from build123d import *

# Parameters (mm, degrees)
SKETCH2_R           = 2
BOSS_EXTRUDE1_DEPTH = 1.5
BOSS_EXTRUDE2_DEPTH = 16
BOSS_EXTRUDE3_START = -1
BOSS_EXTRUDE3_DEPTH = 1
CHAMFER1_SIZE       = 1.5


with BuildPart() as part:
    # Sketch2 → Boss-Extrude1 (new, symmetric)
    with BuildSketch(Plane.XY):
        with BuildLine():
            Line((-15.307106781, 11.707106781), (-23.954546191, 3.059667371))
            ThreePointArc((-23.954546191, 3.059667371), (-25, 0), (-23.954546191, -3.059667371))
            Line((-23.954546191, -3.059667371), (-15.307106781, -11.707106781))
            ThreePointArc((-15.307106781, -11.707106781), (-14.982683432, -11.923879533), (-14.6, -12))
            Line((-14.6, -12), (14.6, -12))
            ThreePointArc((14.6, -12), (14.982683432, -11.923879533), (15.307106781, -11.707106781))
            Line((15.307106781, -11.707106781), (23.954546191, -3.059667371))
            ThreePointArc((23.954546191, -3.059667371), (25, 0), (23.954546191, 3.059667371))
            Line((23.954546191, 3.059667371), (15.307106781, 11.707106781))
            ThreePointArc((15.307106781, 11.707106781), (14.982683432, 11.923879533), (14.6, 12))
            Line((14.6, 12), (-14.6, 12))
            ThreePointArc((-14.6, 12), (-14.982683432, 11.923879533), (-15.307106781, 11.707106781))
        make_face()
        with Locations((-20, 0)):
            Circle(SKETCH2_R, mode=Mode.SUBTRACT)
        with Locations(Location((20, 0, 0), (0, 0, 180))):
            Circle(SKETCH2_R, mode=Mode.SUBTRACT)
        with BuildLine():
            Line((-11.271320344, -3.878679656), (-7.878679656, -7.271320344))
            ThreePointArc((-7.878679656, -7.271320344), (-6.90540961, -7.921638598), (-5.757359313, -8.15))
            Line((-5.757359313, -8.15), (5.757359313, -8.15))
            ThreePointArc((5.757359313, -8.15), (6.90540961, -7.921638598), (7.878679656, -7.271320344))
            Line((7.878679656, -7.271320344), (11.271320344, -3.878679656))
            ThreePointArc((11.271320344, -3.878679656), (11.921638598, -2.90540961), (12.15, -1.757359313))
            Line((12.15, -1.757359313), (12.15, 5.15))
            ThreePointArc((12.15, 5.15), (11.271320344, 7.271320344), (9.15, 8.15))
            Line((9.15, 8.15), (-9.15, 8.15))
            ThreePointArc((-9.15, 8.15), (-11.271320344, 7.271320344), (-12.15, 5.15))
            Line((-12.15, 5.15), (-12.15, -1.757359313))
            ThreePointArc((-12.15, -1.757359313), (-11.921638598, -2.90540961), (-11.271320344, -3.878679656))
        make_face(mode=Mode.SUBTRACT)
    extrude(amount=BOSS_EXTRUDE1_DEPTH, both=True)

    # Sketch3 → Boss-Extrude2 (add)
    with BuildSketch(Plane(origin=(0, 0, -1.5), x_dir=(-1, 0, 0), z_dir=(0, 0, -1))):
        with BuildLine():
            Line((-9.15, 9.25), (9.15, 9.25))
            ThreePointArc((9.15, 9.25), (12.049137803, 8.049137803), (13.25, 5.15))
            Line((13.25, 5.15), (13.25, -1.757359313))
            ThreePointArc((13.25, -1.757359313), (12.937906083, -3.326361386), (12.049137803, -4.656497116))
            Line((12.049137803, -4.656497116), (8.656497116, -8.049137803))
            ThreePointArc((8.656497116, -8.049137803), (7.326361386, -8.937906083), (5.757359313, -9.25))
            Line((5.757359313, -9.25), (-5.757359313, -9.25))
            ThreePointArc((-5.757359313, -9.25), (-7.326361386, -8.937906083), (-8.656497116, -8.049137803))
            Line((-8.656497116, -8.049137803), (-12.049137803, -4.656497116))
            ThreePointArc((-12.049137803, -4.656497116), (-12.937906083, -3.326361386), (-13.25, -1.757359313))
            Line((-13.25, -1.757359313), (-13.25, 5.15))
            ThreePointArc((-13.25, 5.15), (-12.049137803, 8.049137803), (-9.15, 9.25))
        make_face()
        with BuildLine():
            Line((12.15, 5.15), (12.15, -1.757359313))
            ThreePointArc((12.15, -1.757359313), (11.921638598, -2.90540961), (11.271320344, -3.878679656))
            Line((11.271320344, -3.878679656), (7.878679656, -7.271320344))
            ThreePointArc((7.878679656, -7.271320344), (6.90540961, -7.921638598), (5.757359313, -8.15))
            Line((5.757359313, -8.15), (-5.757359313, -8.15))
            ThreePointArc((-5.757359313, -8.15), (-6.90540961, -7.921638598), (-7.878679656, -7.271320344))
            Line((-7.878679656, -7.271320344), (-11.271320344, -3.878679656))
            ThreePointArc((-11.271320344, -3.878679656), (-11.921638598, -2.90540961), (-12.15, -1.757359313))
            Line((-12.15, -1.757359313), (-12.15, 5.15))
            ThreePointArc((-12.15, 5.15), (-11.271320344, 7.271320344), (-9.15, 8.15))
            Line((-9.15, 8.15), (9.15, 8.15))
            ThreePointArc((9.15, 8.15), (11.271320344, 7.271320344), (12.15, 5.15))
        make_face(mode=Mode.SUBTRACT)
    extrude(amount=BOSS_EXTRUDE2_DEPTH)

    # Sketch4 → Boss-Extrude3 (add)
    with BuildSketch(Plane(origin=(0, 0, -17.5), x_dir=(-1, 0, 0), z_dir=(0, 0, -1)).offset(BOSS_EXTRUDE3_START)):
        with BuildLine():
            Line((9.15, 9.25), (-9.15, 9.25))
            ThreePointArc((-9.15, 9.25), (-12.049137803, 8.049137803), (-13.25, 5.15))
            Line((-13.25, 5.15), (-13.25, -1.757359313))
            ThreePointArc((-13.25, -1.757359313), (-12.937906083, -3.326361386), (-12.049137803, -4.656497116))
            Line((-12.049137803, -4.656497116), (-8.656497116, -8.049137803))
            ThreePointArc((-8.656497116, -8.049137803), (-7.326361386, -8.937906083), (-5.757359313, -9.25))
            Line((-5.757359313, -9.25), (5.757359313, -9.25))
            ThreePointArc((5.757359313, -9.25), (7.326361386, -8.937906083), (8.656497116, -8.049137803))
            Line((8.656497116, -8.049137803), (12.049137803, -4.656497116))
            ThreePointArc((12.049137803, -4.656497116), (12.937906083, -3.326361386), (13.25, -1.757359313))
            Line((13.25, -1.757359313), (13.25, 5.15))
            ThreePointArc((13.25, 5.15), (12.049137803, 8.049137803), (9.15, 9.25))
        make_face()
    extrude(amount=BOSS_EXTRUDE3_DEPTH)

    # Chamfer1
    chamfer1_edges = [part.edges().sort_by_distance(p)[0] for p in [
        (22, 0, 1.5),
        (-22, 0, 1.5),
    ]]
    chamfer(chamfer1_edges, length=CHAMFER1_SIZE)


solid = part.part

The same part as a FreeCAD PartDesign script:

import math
import FreeCAD as App
import Part
import Sketcher
from FreeCAD import Vector


def edges_at(feature, points):
    """Names of the edges that pass closest to the given points."""
    edges = feature.Shape.Edges
    near = lambda p: min(range(len(edges)), key=lambda i: edges[i].distToShape(Part.Vertex(*p))[0])
    return sorted({f"Edge{near(p) + 1}" for p in points})

doc = App.newDocument("Part")
params = doc.addObject("Spreadsheet::Sheet", "Params")
for row, (alias, value) in enumerate([
    ("sketch1_diameter", "4 mm"),
    ("sketch1_radius", "5 mm"),
    ("sketch1_radius2", "1 mm"),
    ("sketch1_radius3", "3 mm"),
    ("sketch1_width", "29.2 mm"),
    ("pad1_length", "3 mm"),
    ("sketch2_radius", "3 mm"),
    ("sketch2_radius2", "4.1 mm"),
    ("sketch2_width", "18.3 mm"),
    ("pad2_length", "16 mm"),
    ("sketch3_radius", "4.1 mm"),
    ("sketch3_width", "18.3 mm"),
    ("pad3_length", "1 mm"),
    ("chamfer_size", "1.5 mm"),
], start=1):
    params.set(f"A{row}", alias)
    params.set(f"B{row}", "=" + value)
    params.setAlias(f"B{row}", alias)

body = doc.addObject("PartDesign::Body", "Body")

# Sketch on XY plane
sketch1 = body.newObject("Sketcher::SketchObject", "Sketch")
sketch1.AttachmentSupport = (doc.getObject("XY_Plane"), [""])
sketch1.MapMode = "FlatFace"
sketch1.addGeometry([
    Part.LineSegment(Vector(-15.3, 11.7, 0), Vector(-24, 3.1, 0)),  # 0
    Part.ArcOfCircle(Part.Circle(Vector(-20, 0, 0), Vector(0, 0, 1), 5), math.radians(142), math.radians(218)),  # 1
    Part.LineSegment(Vector(-24, -3.1, 0), Vector(-15.3, -11.7, 0)),  # 2
    Part.ArcOfCircle(Part.Circle(Vector(-14.6, -11, 0), Vector(0, 0, 1), 1), math.radians(-135), math.radians(-90)),  # 3
    Part.LineSegment(Vector(-14.6, -12, 0), Vector(14.6, -12, 0)),  # 4
    Part.ArcOfCircle(Part.Circle(Vector(14.6, -11, 0), Vector(0, 0, 1), 1), math.radians(-90), math.radians(-45)),  # 5
    Part.LineSegment(Vector(15.3, -11.7, 0), Vector(24, -3.1, 0)),  # 6
    Part.ArcOfCircle(Part.Circle(Vector(20, 0, 0), Vector(0, 0, 1), 5), math.radians(-38), math.radians(38)),  # 7
    Part.LineSegment(Vector(24, 3.1, 0), Vector(15.3, 11.7, 0)),  # 8
    Part.ArcOfCircle(Part.Circle(Vector(14.6, 11, 0), Vector(0, 0, 1), 1), math.radians(45), math.radians(90)),  # 9
    Part.LineSegment(Vector(14.6, 12, 0), Vector(-14.6, 12, 0)),  # 10
    Part.ArcOfCircle(Part.Circle(Vector(-14.6, 11, 0), Vector(0, 0, 1), 1), math.radians(90), math.radians(135)),  # 11
    Part.Circle(Vector(-20, 0, 0), Vector(0, 0, 1), 2),  # 12
    Part.LineSegment(Vector(-7.9, -7.3, 0), Vector(-11.3, -3.9, 0)),  # 13
    Part.ArcOfCircle(Part.Circle(Vector(-9.2, -1.8, 0), Vector(0, 0, 1), 3), math.radians(180), math.radians(225)),  # 14
    Part.LineSegment(Vector(-12.2, -1.8, 0), Vector(-12.2, 5.2, 0)),  # 15
    Part.ArcOfCircle(Part.Circle(Vector(-9.2, 5.2, 0), Vector(0, 0, 1), 3), math.radians(90), math.radians(180)),  # 16
    Part.LineSegment(Vector(-9.2, 8.2, 0), Vector(9.2, 8.2, 0)),  # 17
    Part.ArcOfCircle(Part.Circle(Vector(9.2, 5.2, 0), Vector(0, 0, 1), 3), math.radians(0), math.radians(90)),  # 18
    Part.LineSegment(Vector(12.2, 5.2, 0), Vector(12.2, -1.8, 0)),  # 19
    Part.ArcOfCircle(Part.Circle(Vector(9.2, -1.8, 0), Vector(0, 0, 1), 3), math.radians(-45), math.radians(0)),  # 20
    Part.LineSegment(Vector(11.3, -3.9, 0), Vector(7.9, -7.3, 0)),  # 21
    Part.ArcOfCircle(Part.Circle(Vector(5.8, -5.2, 0), Vector(0, 0, 1), 3), math.radians(-90), math.radians(-45)),  # 22
    Part.LineSegment(Vector(5.8, -8.2, 0), Vector(-5.8, -8.2, 0)),  # 23
    Part.ArcOfCircle(Part.Circle(Vector(-5.8, -5.2, 0), Vector(0, 0, 1), 3), math.radians(-135), math.radians(-90)),  # 24
    Part.Circle(Vector(20, 0, 0), Vector(0, 0, 1), 2),  # 25
], False)
sketch1.addConstraint([
    Sketcher.Constraint("Coincident", 0, 2, 1, 1),
    Sketcher.Constraint("Coincident", 1, 2, 2, 1),
    Sketcher.Constraint("Tangent", 2, 2, 3, 1),
    Sketcher.Constraint("Tangent", 3, 2, 4, 1),
    Sketcher.Constraint("Tangent", 4, 2, 5, 1),
    Sketcher.Constraint("Tangent", 5, 2, 6, 1),
    Sketcher.Constraint("Coincident", 6, 2, 7, 1),
    Sketcher.Constraint("Coincident", 7, 2, 8, 1),
    Sketcher.Constraint("Tangent", 8, 2, 9, 1),
    Sketcher.Constraint("Tangent", 9, 2, 10, 1),
    Sketcher.Constraint("Tangent", 10, 2, 11, 1),
    Sketcher.Constraint("Tangent", 11, 2, 0, 1),
    Sketcher.Constraint("Tangent", 13, 2, 14, 2),
    Sketcher.Constraint("Tangent", 14, 1, 15, 1),
    Sketcher.Constraint("Tangent", 15, 2, 16, 2),
    Sketcher.Constraint("Tangent", 16, 1, 17, 1),
    Sketcher.Constraint("Tangent", 17, 2, 18, 2),
    Sketcher.Constraint("Tangent", 18, 1, 19, 1),
    Sketcher.Constraint("Tangent", 19, 2, 20, 2),
    Sketcher.Constraint("Tangent", 20, 1, 21, 1),
    Sketcher.Constraint("Tangent", 21, 2, 22, 2),
    Sketcher.Constraint("Tangent", 22, 1, 23, 1),
    Sketcher.Constraint("Tangent", 23, 2, 24, 2),
    Sketcher.Constraint("Tangent", 24, 1, 13, 1),
    Sketcher.Constraint("Horizontal", 4),
    Sketcher.Constraint("Horizontal", 10),
    Sketcher.Constraint("Vertical", 15),
    Sketcher.Constraint("Horizontal", 17),
    Sketcher.Constraint("Vertical", 19),
    Sketcher.Constraint("Horizontal", 23),
    Sketcher.Constraint("Coincident", 12, 3, 1, 3),
    Sketcher.Constraint("Coincident", 25, 3, 7, 3),
    Sketcher.Constraint("Equal", 3, 5),
    Sketcher.Constraint("Equal", 1, 7),
    Sketcher.Constraint("Equal", 5, 9),
    Sketcher.Constraint("Equal", 9, 11),
    Sketcher.Constraint("Equal", 14, 16),
    Sketcher.Constraint("Equal", 16, 18),
    Sketcher.Constraint("Equal", 18, 20),
    Sketcher.Constraint("Equal", 20, 22),
    Sketcher.Constraint("Equal", 22, 24),
    Sketcher.Constraint("Equal", 12, 25),
    Sketcher.Constraint("Symmetric", 1, 3, 7, 3, -1, 1),
    Sketcher.Constraint("Symmetric", 3, 3, 9, 3, -1, 1),
    Sketcher.Constraint("Symmetric", 5, 2, 11, 2, -1, 1),
    Sketcher.Constraint("Symmetric", 14, 3, 20, 3, -2),
    Sketcher.Constraint("Symmetric", 2, 2, 5, 2, -2),
    Sketcher.Constraint("Symmetric", 0, 2, 7, 2, -2),
    Sketcher.Constraint("Perpendicular", 0, 2),
    Sketcher.Constraint("Parallel", 8, 13),
    Sketcher.Constraint("Perpendicular", 13, 21),
    Sketcher.Constraint("Diameter", 12, 4.0),
    Sketcher.Constraint("Radius", 1, 5.0),
    Sketcher.Constraint("Radius", 3, 1.0),
    Sketcher.Constraint("Radius", 14, 3.0),
    Sketcher.Constraint("DistanceX", 4, 1, 4, 2, 29.2),
    Sketcher.Constraint("DistanceX", 17, 1, 17, 2, 18.3),
    Sketcher.Constraint("DistanceX", 1, 3, -1, 1, 20.0),
    Sketcher.Constraint("DistanceY", 3, 3, -1, 1, 11.0),
    Sketcher.Constraint("DistanceY", 22, 3, 18, 3, 10.3),
    Sketcher.Constraint("DistanceY", -1, 1, 16, 3, 5.15),
    Sketcher.Constraint("DistanceX", 23, 2, 23, 1, 11.514719),
])
sketch1.setExpression("Constraints[51]", "Params.sketch1_diameter")
sketch1.setExpression("Constraints[52]", "Params.sketch1_radius")
sketch1.setExpression("Constraints[53]", "Params.sketch1_radius2")
sketch1.setExpression("Constraints[54]", "Params.sketch1_radius3")
sketch1.setExpression("Constraints[55]", "Params.sketch1_width")
pad1 = body.newObject("PartDesign::Pad", "Pad")
pad1.Profile = sketch1
pad1.setExpression("Length", "Params.pad1_length")
pad1.Midplane = True

# Sketch on XY plane
sketch2 = body.newObject("Sketcher::SketchObject", "Sketch001")
sketch2.AttachmentSupport = (doc.getObject("XY_Plane"), [""])
sketch2.MapMode = "FlatFace"
sketch2.AttachmentOffset = App.Placement(Vector(0, 0, -1.5), App.Rotation())
sketch2.addGeometry([
    Part.LineSegment(Vector(-9.2, 9.2, 0), Vector(9.2, 9.2, 0)),  # 0
    Part.ArcOfCircle(Part.Circle(Vector(9.2, 5.2, 0), Vector(0, 0, 1), 4.1), math.radians(0), math.radians(90)),  # 1
    Part.LineSegment(Vector(13.2, 5.2, 0), Vector(13.2, -1.8, 0)),  # 2
    Part.ArcOfCircle(Part.Circle(Vector(9.1, -1.8, 0), Vector(0, 0, 1), 4.1), math.radians(-45), math.radians(0)),  # 3
    Part.LineSegment(Vector(12, -4.7, 0), Vector(8.7, -8, 0)),  # 4
    Part.ArcOfCircle(Part.Circle(Vector(5.8, -5.1, 0), Vector(0, 0, 1), 4.1), math.radians(-90), math.radians(-45)),  # 5
    Part.LineSegment(Vector(5.8, -9.2, 0), Vector(-5.8, -9.2, 0)),  # 6
    Part.ArcOfCircle(Part.Circle(Vector(-5.8, -5.1, 0), Vector(0, 0, 1), 4.1), math.radians(-135), math.radians(-90)),  # 7
    Part.LineSegment(Vector(-8.7, -8, 0), Vector(-12, -4.7, 0)),  # 8
    Part.ArcOfCircle(Part.Circle(Vector(-9.1, -1.8, 0), Vector(0, 0, 1), 4.1), math.radians(-180), math.radians(-135)),  # 9
    Part.LineSegment(Vector(-13.2, -1.8, 0), Vector(-13.2, 5.2, 0)),  # 10
    Part.ArcOfCircle(Part.Circle(Vector(-9.2, 5.2, 0), Vector(0, 0, 1), 4.1), math.radians(90), math.radians(180)),  # 11
    Part.LineSegment(Vector(-12.2, 5.2, 0), Vector(-12.2, -1.8, 0)),  # 12
    Part.ArcOfCircle(Part.Circle(Vector(-9.2, -1.8, 0), Vector(0, 0, 1), 3), math.radians(180), math.radians(225)),  # 13
    Part.LineSegment(Vector(-11.3, -3.9, 0), Vector(-7.9, -7.3, 0)),  # 14
    Part.ArcOfCircle(Part.Circle(Vector(-5.8, -5.2, 0), Vector(0, 0, 1), 3), math.radians(-135), math.radians(-90)),  # 15
    Part.LineSegment(Vector(-5.8, -8.2, 0), Vector(5.8, -8.2, 0)),  # 16
    Part.ArcOfCircle(Part.Circle(Vector(5.8, -5.2, 0), Vector(0, 0, 1), 3), math.radians(-90), math.radians(-45)),  # 17
    Part.LineSegment(Vector(7.9, -7.3, 0), Vector(11.3, -3.9, 0)),  # 18
    Part.ArcOfCircle(Part.Circle(Vector(9.2, -1.8, 0), Vector(0, 0, 1), 3), math.radians(-45), math.radians(0)),  # 19
    Part.LineSegment(Vector(12.2, -1.8, 0), Vector(12.2, 5.2, 0)),  # 20
    Part.ArcOfCircle(Part.Circle(Vector(9.2, 5.2, 0), Vector(0, 0, 1), 3), math.radians(0), math.radians(90)),  # 21
    Part.LineSegment(Vector(9.2, 8.2, 0), Vector(-9.2, 8.2, 0)),  # 22
    Part.ArcOfCircle(Part.Circle(Vector(-9.2, 5.2, 0), Vector(0, 0, 1), 3), math.radians(90), math.radians(180)),  # 23
], False)
sketch2.addConstraint([
    Sketcher.Constraint("Tangent", 0, 2, 1, 2),
    Sketcher.Constraint("Tangent", 1, 1, 2, 1),
    Sketcher.Constraint("Tangent", 2, 2, 3, 2),
    Sketcher.Constraint("Tangent", 3, 1, 4, 1),
    Sketcher.Constraint("Tangent", 4, 2, 5, 2),
    Sketcher.Constraint("Tangent", 5, 1, 6, 1),
    Sketcher.Constraint("Tangent", 6, 2, 7, 2),
    Sketcher.Constraint("Tangent", 7, 1, 8, 1),
    Sketcher.Constraint("Tangent", 8, 2, 9, 2),
    Sketcher.Constraint("Tangent", 9, 1, 10, 1),
    Sketcher.Constraint("Tangent", 10, 2, 11, 2),
    Sketcher.Constraint("Tangent", 11, 1, 0, 1),
    Sketcher.Constraint("Tangent", 12, 2, 13, 1),
    Sketcher.Constraint("Tangent", 13, 2, 14, 1),
    Sketcher.Constraint("Tangent", 14, 2, 15, 1),
    Sketcher.Constraint("Tangent", 15, 2, 16, 1),
    Sketcher.Constraint("Tangent", 16, 2, 17, 1),
    Sketcher.Constraint("Tangent", 17, 2, 18, 1),
    Sketcher.Constraint("Tangent", 18, 2, 19, 1),
    Sketcher.Constraint("Tangent", 19, 2, 20, 1),
    Sketcher.Constraint("Tangent", 20, 2, 21, 1),
    Sketcher.Constraint("Tangent", 21, 2, 22, 1),
    Sketcher.Constraint("Tangent", 22, 2, 23, 1),
    Sketcher.Constraint("Tangent", 23, 2, 12, 1),
    Sketcher.Constraint("Horizontal", 0),
    Sketcher.Constraint("Vertical", 2),
    Sketcher.Constraint("Horizontal", 6),
    Sketcher.Constraint("Vertical", 10),
    Sketcher.Constraint("Vertical", 12),
    Sketcher.Constraint("Horizontal", 16),
    Sketcher.Constraint("Vertical", 20),
    Sketcher.Constraint("Horizontal", 22),
    Sketcher.Constraint("Coincident", 13, 3, 9, 3),
    Sketcher.Constraint("Coincident", 15, 3, 7, 3),
    Sketcher.Constraint("Coincident", 17, 3, 5, 3),
    Sketcher.Constraint("Coincident", 19, 3, 3, 3),
    Sketcher.Constraint("Coincident", 21, 3, 1, 3),
    Sketcher.Constraint("Coincident", 23, 3, 11, 3),
    Sketcher.Constraint("Equal", 1, 3),
    Sketcher.Constraint("Equal", 3, 5),
    Sketcher.Constraint("Equal", 5, 7),
    Sketcher.Constraint("Equal", 7, 9),
    Sketcher.Constraint("Equal", 9, 11),
    Sketcher.Constraint("Equal", 13, 15),
    Sketcher.Constraint("Symmetric", 3, 3, 9, 3, -2),
    Sketcher.Constraint("Perpendicular", 4, 8),
    Sketcher.Constraint("Horizontal", 4, 2, 7, 1),
    Sketcher.Constraint("Radius", 13, 3.0),
    Sketcher.Constraint("Radius", 1, 4.1),
    Sketcher.Constraint("DistanceX", 0, 1, 0, 2, 18.3),
    Sketcher.Constraint("DistanceY", 5, 3, 1, 3, 10.3),
    Sketcher.Constraint("DistanceY", -1, 1, 1, 3, 5.15),
    Sketcher.Constraint("DistanceX", 6, 2, 6, 1, 11.514719),
])
sketch2.setExpression("Constraints[47]", "Params.sketch2_radius")
sketch2.setExpression("Constraints[48]", "Params.sketch2_radius2")
sketch2.setExpression("Constraints[49]", "Params.sketch2_width")
pad2 = body.newObject("PartDesign::Pad", "Pad001")
pad2.Profile = sketch2
pad2.setExpression("Length", "Params.pad2_length")
pad2.Reversed = True

# Sketch on XY plane
sketch3 = body.newObject("Sketcher::SketchObject", "Sketch002")
sketch3.AttachmentSupport = (doc.getObject("XY_Plane"), [""])
sketch3.MapMode = "FlatFace"
sketch3.AttachmentOffset = App.Placement(Vector(0, 0, -16.5), App.Rotation())
sketch3.addGeometry([
    Part.LineSegment(Vector(-9.2, 9.2, 0), Vector(9.2, 9.2, 0)),  # 0
    Part.ArcOfCircle(Part.Circle(Vector(9.2, 5.2, 0), Vector(0, 0, 1), 4.1), math.radians(0), math.radians(90)),  # 1
    Part.LineSegment(Vector(13.2, 5.2, 0), Vector(13.2, -1.8, 0)),  # 2
    Part.ArcOfCircle(Part.Circle(Vector(9.1, -1.8, 0), Vector(0, 0, 1), 4.1), math.radians(-45), math.radians(0)),  # 3
    Part.LineSegment(Vector(12, -4.7, 0), Vector(8.7, -8, 0)),  # 4
    Part.ArcOfCircle(Part.Circle(Vector(5.8, -5.1, 0), Vector(0, 0, 1), 4.1), math.radians(-90), math.radians(-45)),  # 5
    Part.LineSegment(Vector(5.8, -9.2, 0), Vector(-5.8, -9.2, 0)),  # 6
    Part.ArcOfCircle(Part.Circle(Vector(-5.8, -5.1, 0), Vector(0, 0, 1), 4.1), math.radians(-135), math.radians(-90)),  # 7
    Part.LineSegment(Vector(-8.7, -8, 0), Vector(-12, -4.7, 0)),  # 8
    Part.ArcOfCircle(Part.Circle(Vector(-9.1, -1.8, 0), Vector(0, 0, 1), 4.1), math.radians(-180), math.radians(-135)),  # 9
    Part.LineSegment(Vector(-13.2, -1.8, 0), Vector(-13.2, 5.2, 0)),  # 10
    Part.ArcOfCircle(Part.Circle(Vector(-9.2, 5.2, 0), Vector(0, 0, 1), 4.1), math.radians(90), math.radians(180)),  # 11
], False)
sketch3.addConstraint([
    Sketcher.Constraint("Tangent", 0, 2, 1, 2),
    Sketcher.Constraint("Tangent", 1, 1, 2, 1),
    Sketcher.Constraint("Tangent", 2, 2, 3, 2),
    Sketcher.Constraint("Tangent", 3, 1, 4, 1),
    Sketcher.Constraint("Tangent", 4, 2, 5, 2),
    Sketcher.Constraint("Tangent", 5, 1, 6, 1),
    Sketcher.Constraint("Tangent", 6, 2, 7, 2),
    Sketcher.Constraint("Tangent", 7, 1, 8, 1),
    Sketcher.Constraint("Tangent", 8, 2, 9, 2),
    Sketcher.Constraint("Tangent", 9, 1, 10, 1),
    Sketcher.Constraint("Tangent", 10, 2, 11, 2),
    Sketcher.Constraint("Tangent", 11, 1, 0, 1),
    Sketcher.Constraint("Horizontal", 0),
    Sketcher.Constraint("Vertical", 2),
    Sketcher.Constraint("Horizontal", 6),
    Sketcher.Constraint("Vertical", 10),
    Sketcher.Constraint("Equal", 1, 3),
    Sketcher.Constraint("Equal", 3, 5),
    Sketcher.Constraint("Equal", 5, 7),
    Sketcher.Constraint("Equal", 7, 9),
    Sketcher.Constraint("Equal", 9, 11),
    Sketcher.Constraint("Symmetric", 3, 3, 9, 3, -2),
    Sketcher.Constraint("Perpendicular", 4, 8),
    Sketcher.Constraint("Horizontal", 4, 2, 7, 1),
    Sketcher.Constraint("Radius", 1, 4.1),
    Sketcher.Constraint("DistanceX", 0, 1, 0, 2, 18.3),
    Sketcher.Constraint("DistanceY", 5, 3, 1, 3, 10.3),
    Sketcher.Constraint("DistanceY", -1, 1, 1, 3, 5.15),
    Sketcher.Constraint("DistanceX", 6, 2, 6, 1, 11.514719),
])
sketch3.setExpression("Constraints[24]", "Params.sketch3_radius")
sketch3.setExpression("Constraints[25]", "Params.sketch3_width")
pad3 = body.newObject("PartDesign::Pad", "Pad002")
pad3.Profile = sketch3
pad3.setExpression("Length", "Params.pad3_length")
pad3.Reversed = True
doc.recompute()

chamfer = body.newObject("PartDesign::Chamfer", "Chamfer")
chamfer.Base = (pad3, edges_at(pad3, [(22, 0, 1.5), (-22, 0, 1.5)]))
chamfer.setExpression("Size", "Params.chamfer_size")

doc.recompute()
